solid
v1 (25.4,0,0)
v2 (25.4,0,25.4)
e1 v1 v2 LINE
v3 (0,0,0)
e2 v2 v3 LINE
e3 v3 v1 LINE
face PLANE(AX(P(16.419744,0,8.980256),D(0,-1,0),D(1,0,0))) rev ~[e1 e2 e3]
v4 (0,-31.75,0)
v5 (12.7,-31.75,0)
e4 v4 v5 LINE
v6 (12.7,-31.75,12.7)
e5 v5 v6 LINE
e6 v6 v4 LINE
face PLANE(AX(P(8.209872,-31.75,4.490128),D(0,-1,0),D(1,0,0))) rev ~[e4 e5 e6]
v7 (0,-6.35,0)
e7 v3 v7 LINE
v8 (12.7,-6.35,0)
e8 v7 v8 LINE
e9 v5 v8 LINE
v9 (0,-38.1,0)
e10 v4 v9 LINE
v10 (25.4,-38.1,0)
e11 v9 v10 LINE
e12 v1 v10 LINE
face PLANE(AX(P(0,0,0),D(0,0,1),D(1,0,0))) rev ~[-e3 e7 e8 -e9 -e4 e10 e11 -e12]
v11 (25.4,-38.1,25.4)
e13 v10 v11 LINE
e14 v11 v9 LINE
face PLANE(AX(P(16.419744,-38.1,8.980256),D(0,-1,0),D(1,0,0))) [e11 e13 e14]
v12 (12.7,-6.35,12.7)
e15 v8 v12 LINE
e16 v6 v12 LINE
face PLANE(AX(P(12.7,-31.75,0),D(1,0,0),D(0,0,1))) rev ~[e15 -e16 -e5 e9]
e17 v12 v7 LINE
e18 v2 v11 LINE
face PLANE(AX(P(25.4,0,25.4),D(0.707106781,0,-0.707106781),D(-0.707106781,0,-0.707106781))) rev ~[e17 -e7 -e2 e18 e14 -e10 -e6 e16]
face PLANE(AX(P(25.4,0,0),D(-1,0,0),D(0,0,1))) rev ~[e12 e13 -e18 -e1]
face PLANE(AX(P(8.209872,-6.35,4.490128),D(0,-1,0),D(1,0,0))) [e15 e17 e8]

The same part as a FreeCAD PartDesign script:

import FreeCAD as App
import Part
import Sketcher
Q = App.Units.Quantity


def add_polygon(sketch, points):
    """Adds a closed chain of lines whose ends are joined by coincident constraints."""
    first, n = sketch.GeometryCount, len(points)
    for a, b in zip(points, points[1:] + points[:1]):
        sketch.addGeometry(Part.LineSegment(App.Vector(*a, 0), App.Vector(*b, 0)), False)
    for i in range(n):
        sketch.addConstraint(Sketcher.Constraint("Coincident", first + i, 2, first + (i + 1) % n, 1))

doc = App.newDocument("Part")
body = doc.addObject("PartDesign::Body", "Body")

# Sketch on XZ plane
sketch1 = body.newObject("Sketcher::SketchObject", "Sketch")
sketch1.AttachmentSupport = (doc.getObject("XZ_Plane"), [""])
sketch1.MapMode = "FlatFace"
add_polygon(sketch1, [(25, 25), (0, 0), (25, 0)])  # lines 0-2
sketch1.addConstraint([
    Sketcher.Constraint("Horizontal", 1),
    Sketcher.Constraint("Vertical", 2),
    Sketcher.Constraint("Coincident", 0, 2, -1, 1),
    Sketcher.Constraint("Equal", 1, 2),
    Sketcher.Constraint("DistanceX", 1, 1, 1, 2, Q("1 in")),
])
pad1 = body.newObject("PartDesign::Pad", "Pad")
pad1.Profile = sketch1
pad1.Length = Q("1.5 in")

# Sketch on XZ plane
sketch2 = body.newObject("Sketcher::SketchObject", "Sketch001")
sketch2.AttachmentSupport = (doc.getObject("XZ_Plane"), [""])
sketch2.MapMode = "FlatFace"
sketch2.AttachmentOffset = App.Placement(App.Vector(0, 0, 1.25 * 25.4), App.Rotation())
add_polygon(sketch2, [(13, 0), (13, 13), (0, 0)])  # lines 0-2
sketch2.addConstraint([
    Sketcher.Constraint("Vertical", 0),
    Sketcher.Constraint("Horizontal", 2),
    Sketcher.Constraint("Coincident", 1, 2, -1, 1),
    Sketcher.Constraint("Equal", 2, 0),
    Sketcher.Constraint("DistanceX", 2, 1, 2, 2, Q("0.5 in")),
])
pocket1 = body.newObject("PartDesign::Pocket", "Pocket")
pocket1.Profile = sketch2
pocket1.Length = Q("1 in")

doc.recompute()
